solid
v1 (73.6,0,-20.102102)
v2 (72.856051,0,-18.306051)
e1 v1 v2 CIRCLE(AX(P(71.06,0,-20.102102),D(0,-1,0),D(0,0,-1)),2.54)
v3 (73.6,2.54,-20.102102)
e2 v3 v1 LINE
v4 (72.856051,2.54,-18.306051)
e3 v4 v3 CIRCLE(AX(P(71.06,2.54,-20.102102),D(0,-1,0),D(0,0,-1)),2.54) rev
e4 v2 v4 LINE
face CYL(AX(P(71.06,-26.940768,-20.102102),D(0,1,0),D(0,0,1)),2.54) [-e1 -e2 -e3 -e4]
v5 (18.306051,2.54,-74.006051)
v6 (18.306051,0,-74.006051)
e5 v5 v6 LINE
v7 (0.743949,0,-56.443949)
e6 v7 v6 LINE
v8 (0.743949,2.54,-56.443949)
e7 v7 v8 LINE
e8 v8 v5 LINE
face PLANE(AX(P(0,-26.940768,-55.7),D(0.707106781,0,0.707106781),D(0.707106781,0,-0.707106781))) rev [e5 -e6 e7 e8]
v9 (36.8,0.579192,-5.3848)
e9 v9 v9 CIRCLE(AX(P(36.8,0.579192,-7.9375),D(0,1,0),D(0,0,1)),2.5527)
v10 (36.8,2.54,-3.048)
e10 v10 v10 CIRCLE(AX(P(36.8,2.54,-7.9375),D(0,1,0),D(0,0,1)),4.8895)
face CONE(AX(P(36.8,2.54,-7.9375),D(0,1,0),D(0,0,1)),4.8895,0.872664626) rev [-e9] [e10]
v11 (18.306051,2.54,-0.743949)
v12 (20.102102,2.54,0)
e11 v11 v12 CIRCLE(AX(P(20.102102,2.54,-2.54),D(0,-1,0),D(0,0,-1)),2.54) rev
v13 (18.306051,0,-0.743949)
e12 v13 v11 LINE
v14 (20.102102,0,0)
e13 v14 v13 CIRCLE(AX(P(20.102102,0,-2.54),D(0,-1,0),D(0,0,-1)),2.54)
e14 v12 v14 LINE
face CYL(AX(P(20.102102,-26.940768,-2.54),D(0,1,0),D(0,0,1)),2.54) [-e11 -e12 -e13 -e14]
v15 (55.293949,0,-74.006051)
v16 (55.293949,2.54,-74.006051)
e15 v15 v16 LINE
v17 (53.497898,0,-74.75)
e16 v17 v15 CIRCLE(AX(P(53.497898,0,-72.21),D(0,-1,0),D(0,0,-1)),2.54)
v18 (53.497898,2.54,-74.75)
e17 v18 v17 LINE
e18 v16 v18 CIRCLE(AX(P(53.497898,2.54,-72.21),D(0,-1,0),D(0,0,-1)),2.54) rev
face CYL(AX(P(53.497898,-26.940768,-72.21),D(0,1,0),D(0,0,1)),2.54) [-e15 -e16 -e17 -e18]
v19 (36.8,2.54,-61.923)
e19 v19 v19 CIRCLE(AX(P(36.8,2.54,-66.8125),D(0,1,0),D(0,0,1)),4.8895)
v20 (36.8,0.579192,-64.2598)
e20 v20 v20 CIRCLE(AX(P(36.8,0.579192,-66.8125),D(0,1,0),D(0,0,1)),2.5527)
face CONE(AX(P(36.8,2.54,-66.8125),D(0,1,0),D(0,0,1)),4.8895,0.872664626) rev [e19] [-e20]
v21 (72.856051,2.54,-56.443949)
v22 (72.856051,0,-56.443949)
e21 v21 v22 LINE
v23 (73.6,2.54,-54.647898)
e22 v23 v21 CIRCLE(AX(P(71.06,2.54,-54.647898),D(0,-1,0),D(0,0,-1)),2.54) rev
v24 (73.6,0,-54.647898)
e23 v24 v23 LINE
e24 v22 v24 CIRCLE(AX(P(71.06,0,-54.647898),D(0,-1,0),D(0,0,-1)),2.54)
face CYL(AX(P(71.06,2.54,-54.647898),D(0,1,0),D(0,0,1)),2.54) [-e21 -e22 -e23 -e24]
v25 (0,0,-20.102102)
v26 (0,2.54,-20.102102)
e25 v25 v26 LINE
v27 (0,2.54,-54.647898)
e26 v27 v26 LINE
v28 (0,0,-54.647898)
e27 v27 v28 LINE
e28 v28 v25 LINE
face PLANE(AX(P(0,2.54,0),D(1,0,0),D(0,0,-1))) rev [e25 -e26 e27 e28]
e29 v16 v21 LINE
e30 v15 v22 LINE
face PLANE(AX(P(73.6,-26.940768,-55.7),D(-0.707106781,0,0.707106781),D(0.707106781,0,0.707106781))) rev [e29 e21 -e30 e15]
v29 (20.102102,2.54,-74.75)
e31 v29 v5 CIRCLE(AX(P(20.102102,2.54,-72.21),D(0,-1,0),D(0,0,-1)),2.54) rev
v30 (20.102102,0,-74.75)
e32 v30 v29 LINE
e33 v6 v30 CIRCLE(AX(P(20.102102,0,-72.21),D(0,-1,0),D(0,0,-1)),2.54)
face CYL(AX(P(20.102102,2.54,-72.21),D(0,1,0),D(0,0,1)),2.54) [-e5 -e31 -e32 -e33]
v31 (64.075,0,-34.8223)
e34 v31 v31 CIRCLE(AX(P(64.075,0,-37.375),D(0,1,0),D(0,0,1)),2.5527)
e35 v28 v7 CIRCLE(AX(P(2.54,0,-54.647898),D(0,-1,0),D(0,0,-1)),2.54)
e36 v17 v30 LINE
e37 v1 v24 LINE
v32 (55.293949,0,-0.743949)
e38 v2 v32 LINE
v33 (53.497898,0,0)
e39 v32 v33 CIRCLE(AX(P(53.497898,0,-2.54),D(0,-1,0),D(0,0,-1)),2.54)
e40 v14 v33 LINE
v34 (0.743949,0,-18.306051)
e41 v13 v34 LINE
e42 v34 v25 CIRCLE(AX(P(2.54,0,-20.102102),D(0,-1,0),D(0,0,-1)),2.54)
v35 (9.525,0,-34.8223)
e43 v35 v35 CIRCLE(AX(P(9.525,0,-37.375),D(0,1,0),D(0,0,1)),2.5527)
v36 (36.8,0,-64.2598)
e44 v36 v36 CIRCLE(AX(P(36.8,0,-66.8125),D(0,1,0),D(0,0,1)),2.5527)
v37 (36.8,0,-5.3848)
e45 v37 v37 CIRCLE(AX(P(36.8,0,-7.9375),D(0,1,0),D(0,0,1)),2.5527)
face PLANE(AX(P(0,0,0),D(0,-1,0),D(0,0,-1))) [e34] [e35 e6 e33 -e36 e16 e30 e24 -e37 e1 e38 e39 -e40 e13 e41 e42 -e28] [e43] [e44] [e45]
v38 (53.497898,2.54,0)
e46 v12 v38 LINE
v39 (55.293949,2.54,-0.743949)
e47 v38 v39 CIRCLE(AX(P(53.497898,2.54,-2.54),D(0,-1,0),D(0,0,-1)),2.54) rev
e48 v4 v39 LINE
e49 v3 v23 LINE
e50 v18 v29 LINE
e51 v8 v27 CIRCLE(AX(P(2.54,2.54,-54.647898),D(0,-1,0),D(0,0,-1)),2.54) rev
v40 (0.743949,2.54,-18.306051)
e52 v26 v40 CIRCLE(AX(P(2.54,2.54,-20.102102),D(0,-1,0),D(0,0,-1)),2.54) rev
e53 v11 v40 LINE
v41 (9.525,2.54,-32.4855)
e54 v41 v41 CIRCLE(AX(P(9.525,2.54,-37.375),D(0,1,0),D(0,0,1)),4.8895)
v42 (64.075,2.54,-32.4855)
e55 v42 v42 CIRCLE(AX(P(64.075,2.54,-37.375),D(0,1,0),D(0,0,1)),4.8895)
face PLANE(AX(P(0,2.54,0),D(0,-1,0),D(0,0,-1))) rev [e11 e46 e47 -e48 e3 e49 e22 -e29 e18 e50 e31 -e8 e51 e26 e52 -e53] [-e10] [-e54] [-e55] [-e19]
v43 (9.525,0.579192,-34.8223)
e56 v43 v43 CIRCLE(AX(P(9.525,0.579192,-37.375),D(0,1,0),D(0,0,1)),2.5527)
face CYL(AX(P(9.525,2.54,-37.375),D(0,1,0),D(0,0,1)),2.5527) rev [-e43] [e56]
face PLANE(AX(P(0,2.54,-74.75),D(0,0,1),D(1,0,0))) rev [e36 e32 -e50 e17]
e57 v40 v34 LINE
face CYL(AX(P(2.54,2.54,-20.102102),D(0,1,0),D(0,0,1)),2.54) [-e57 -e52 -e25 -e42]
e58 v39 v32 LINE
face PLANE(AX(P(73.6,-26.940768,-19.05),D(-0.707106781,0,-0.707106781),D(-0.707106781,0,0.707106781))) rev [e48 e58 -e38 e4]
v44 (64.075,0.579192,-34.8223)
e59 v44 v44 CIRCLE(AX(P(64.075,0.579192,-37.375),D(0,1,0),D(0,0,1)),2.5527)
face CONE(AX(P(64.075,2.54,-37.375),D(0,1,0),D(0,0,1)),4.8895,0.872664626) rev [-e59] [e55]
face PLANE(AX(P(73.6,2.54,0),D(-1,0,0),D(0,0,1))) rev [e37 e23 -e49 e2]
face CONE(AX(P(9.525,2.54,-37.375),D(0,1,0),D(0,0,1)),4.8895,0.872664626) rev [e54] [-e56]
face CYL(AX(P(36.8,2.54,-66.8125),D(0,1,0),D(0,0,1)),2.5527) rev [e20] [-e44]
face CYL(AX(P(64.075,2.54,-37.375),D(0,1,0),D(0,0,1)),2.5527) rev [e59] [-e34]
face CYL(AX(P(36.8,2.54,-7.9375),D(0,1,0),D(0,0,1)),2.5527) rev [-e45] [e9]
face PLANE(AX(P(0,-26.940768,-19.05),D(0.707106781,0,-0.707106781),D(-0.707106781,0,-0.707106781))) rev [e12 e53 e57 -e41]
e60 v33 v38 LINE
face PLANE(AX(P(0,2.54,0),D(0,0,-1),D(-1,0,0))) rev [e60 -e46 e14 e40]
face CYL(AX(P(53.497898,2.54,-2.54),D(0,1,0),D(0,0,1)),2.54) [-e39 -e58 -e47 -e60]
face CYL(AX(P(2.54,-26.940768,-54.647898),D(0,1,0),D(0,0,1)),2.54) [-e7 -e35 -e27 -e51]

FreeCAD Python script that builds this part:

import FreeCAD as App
import Part
import Sketcher
from FreeCAD import Vector
Q = App.Units.Quantity


def edges_at(feature, points):
    """Names of the edges that pass closest to the given points."""
    edges = feature.Shape.Edges
    near = lambda p: min(range(len(edges)), key=lambda i: edges[i].distToShape(Part.Vertex(*p))[0])
    return sorted({f"Edge{near(p) + 1}" for p in points})

doc = App.newDocument("Part")
params = doc.addObject("Spreadsheet::Sheet", "Params")
for row, (alias, value) in enumerate([
    ("pad1_length", "0.1 in"),
    ("sketch2_width", "0.1 in"),
    ("groove_angle", "360 deg"),
    ("linearpattern_pitch", "40.130936 mm"),
    ("linearpattern2_pitch", "54.55 mm"),
    ("linearpattern3_pitch", "40.130936 mm"),
    ("sketch3_width", "0.75 in"),
    ("pocket1_length", "0.1 in"),
    ("fillet_radius", "0.1 in"),
], start=1):
    params.set(f"A{row}", alias)
    params.set(f"B{row}", "=" + value)
    params.setAlias(f"B{row}", alias)

body = doc.addObject("PartDesign::Body", "Body")

sketch1 = doc.addObject("Sketcher::SketchObject", "Sketch")
body.addObject(sketch1)
sketch1.AttachmentSupport = (doc.XZ_Plane, [""])
sketch1.MapMode = "FlatFace"
sketch1.addGeometry([
    Part.LineSegment(Vector(0, -75, 0), Vector(0, 0, 0)),
    Part.LineSegment(Vector(0, 0, 0), Vector(74, 0, 0)),
    Part.LineSegment(Vector(74, 0, 0), Vector(74, -75, 0)),
    Part.LineSegment(Vector(74, -75, 0), Vector(0, -75, 0)),
], False)
sketch1.addConstraint([
    Sketcher.Constraint("Coincident", 0, 2, 1, 1),
    Sketcher.Constraint("Coincident", 1, 2, 2, 1),
    Sketcher.Constraint("Coincident", 2, 2, 3, 1),
    Sketcher.Constraint("Coincident", 3, 2, 0, 1),
    Sketcher.Constraint("Vertical", 0),
    Sketcher.Constraint("Horizontal", 1),
    Sketcher.Constraint("Vertical", 2),
    Sketcher.Constraint("Horizontal", 3),
    Sketcher.Constraint("Coincident", 0, 2, -1, 1),
    Sketcher.Constraint("DistanceX", 1, 1, 1, 2, 73.6),
    Sketcher.Constraint("DistanceY", 0, 1, 0, 2, 74.75),
])
pad1 = doc.addObject("PartDesign::Pad", "Pad")
body.addObject(pad1)
pad1.Profile = sketch1
pad1.setExpression("Length", "Params.pad1_length")
pad1.Reversed = True

sketch2 = doc.addObject("Sketcher::SketchObject", "Sketch001")
body.addObject(sketch2)
sketch2.AttachmentSupport = (doc.YZ_Plane, [""])
sketch2.MapMode = "FlatFace"
sketch2.AttachmentOffset = App.Placement(Vector(0, 0, 0.375 * 25.4), App.Rotation())
sketch2.addGeometry([
    Part.LineSegment(Vector(0, -37.4, 0), Vector(2.5, -37.4, 0)),
    Part.LineSegment(Vector(2.5, -37.4, 0), Vector(2.5, -32.5, 0)),
    Part.LineSegment(Vector(2.5, -32.5, 0), Vector(0.6, -34.8, 0)),
    Part.LineSegment(Vector(0.6, -34.8, 0), Vector(0, -34.8, 0)),
    Part.LineSegment(Vector(0, -34.8, 0), Vector(0, -37.4, 0)),
], False)
sketch2.addGeometry(Part.LineSegment(Vector(2.5, -37.4, 0), Vector(0, -37.4, 0)), True)
sketch2.addConstraint([
    Sketcher.Constraint("Coincident", 0, 2, 1, 1),
    Sketcher.Constraint("Coincident", 1, 2, 2, 1),
    Sketcher.Constraint("Coincident", 2, 2, 3, 1),
    Sketcher.Constraint("Coincident", 3, 2, 4, 1),
    Sketcher.Constraint("Coincident", 4, 2, 0, 1),
    Sketcher.Constraint("Horizontal", 0),
    Sketcher.Constraint("Vertical", 1),
    Sketcher.Constraint("Horizontal", 3),
    Sketcher.Constraint("Vertical", 4),
    Sketcher.Constraint("Horizontal", 5),
    Sketcher.Constraint("Coincident", 5, 1, 0, 2),
    Sketcher.Constraint("PointOnObject", 3, 2, -2),
    Sketcher.Constraint("PointOnObject", 5, 2, -2),
    Sketcher.Constraint("DistanceX", 0, 1, 0, 2, Q("0.1 in")),
    Sketcher.Constraint("Angle", 2, Q("-130 deg")),
    Sketcher.Constraint("DistanceY", 1, 1, 1, 2, Q("0.1925 in")),
    Sketcher.Constraint("DistanceY", 4, 2, 4, 1, Q("0.1005 in")),
    Sketcher.Constraint("DistanceY", 0, 2, -1, 1, 37.375),
])
sketch2.setExpression("Constraints[13]", "Params.sketch2_width")
groove = doc.addObject("PartDesign::Groove", "Groove")
body.addObject(groove)
groove.Profile = sketch2
groove.ReferenceAxis = (sketch2, ["Axis0"])
groove.setExpression("Angle", "Params.groove_angle")
doc.recompute()

datumline = doc.addObject("PartDesign::Line", "DatumLine")
body.addObject(datumline)
datumline.Placement = App.Placement(Vector(0, 0, 0), App.Rotation(Vector(0, 0, 1), Vector(0.679650232, 0, 0.73353634)))
linearpattern = doc.addObject("PartDesign::LinearPattern", "LinearPattern")
body.addObject(linearpattern)
linearpattern.Originals = [groove]
linearpattern.Direction = (datumline, [""])
linearpattern.Mode = "offset"
linearpattern.setExpression("Offset", "Params.linearpattern_pitch")
linearpattern.Occurrences = 2
body.Tip = linearpattern
doc.recompute()

linearpattern2 = doc.addObject("PartDesign::LinearPattern", "LinearPattern001")
body.addObject(linearpattern2)
linearpattern2.Originals = [groove]
linearpattern2.Direction = (doc.X_Axis, [""])
linearpattern2.Mode = "offset"
linearpattern2.setExpression("Offset", "Params.linearpattern2_pitch")
linearpattern2.Occurrences = 2
body.Tip = linearpattern2
doc.recompute()

datumline2 = doc.addObject("PartDesign::Line", "DatumLine001")
body.addObject(datumline2)
datumline2.Placement = App.Placement(Vector(0, 0, 0), App.Rotation(Vector(0, 0, 1), Vector(0.679650232, 0, -0.73353634)))
linearpattern3 = doc.addObject("PartDesign::LinearPattern", "LinearPattern002")
body.addObject(linearpattern3)
linearpattern3.Originals = [groove]
linearpattern3.Direction = (datumline2, [""])
linearpattern3.Mode = "offset"
linearpattern3.setExpression("Offset", "Params.linearpattern3_pitch")
linearpattern3.Occurrences = 2
body.Tip = linearpattern3

sketch3 = doc.addObject("Sketcher::SketchObject", "Sketch002")
body.addObject(sketch3)
sketch3.AttachmentSupport = (doc.XZ_Plane, [""])
sketch3.MapMode = "FlatFace"
sketch3.AttachmentOffset = App.Placement(Vector(0, 0, -0.1 * 25.4), App.Rotation())
sketch3.addGeometry([
    Part.LineSegment(Vector(0, -19, 0), Vector(0, 0, 0)),
    Part.LineSegment(Vector(0, 0, 0), Vector(19, 0, 0)),
    Part.LineSegment(Vector(19, 0, 0), Vector(0, -19, 0)),
    Part.LineSegment(Vector(55, 0, 0), Vector(74, 0, 0)),
    Part.LineSegment(Vector(74, 0, 0), Vector(74, -19, 0)),
    Part.LineSegment(Vector(74, -19, 0), Vector(55, 0, 0)),
    Part.LineSegment(Vector(74, -56, 0), Vector(74, -75, 0)),
    Part.LineSegment(Vector(74, -75, 0), Vector(55, -75, 0)),
    Part.LineSegment(Vector(55, -75, 0), Vector(74, -56, 0)),
    Part.LineSegment(Vector(0, -56, 0), Vector(19, -75, 0)),
    Part.LineSegment(Vector(19, -75, 0), Vector(0, -75, 0)),
    Part.LineSegment(Vector(0, -75, 0), Vector(0, -56, 0)),
], False)
sketch3.addConstraint([
    Sketcher.Constraint("Coincident", 0, 2, 1, 1),
    Sketcher.Constraint("Coincident", 1, 2, 2, 1),
    Sketcher.Constraint("Coincident", 2, 2, 0, 1),
    Sketcher.Constraint("Coincident", 3, 2, 4, 1),
    Sketcher.Constraint("Coincident", 4, 2, 5, 1),
    Sketcher.Constraint("Coincident", 5, 2, 3, 1),
    Sketcher.Constraint("Coincident", 6, 2, 7, 1),
    Sketcher.Constraint("Coincident", 7, 2, 8, 1),
    Sketcher.Constraint("Coincident", 8, 2, 6, 1),
    Sketcher.Constraint("Coincident", 9, 2, 10, 1),
    Sketcher.Constraint("Coincident", 10, 2, 11, 1),
    Sketcher.Constraint("Coincident", 11, 2, 9, 1),
    Sketcher.Constraint("Vertical", 0),
    Sketcher.Constraint("Horizontal", 1),
    Sketcher.Constraint("Horizontal", 3),
    Sketcher.Constraint("Vertical", 4),
    Sketcher.Constraint("Vertical", 6),
    Sketcher.Constraint("Horizontal", 7),
    Sketcher.Constraint("Horizontal", 10),
    Sketcher.Constraint("Vertical", 11),
    Sketcher.Constraint("Coincident", 0, 2, -1, 1),
    Sketcher.Constraint("PointOnObject", 3, 2, -1),
    Sketcher.Constraint("PointOnObject", 10, 2, -2),
    Sketcher.Constraint("Perpendicular", 2, 5),
    Sketcher.Constraint("Perpendicular", 5, 8),
    Sketcher.Constraint("Perpendicular", 8, 9),
    Sketcher.Constraint("Horizontal", 2, 2, 4, 2),
    Sketcher.Constraint("Horizontal", 7, 2, 9, 2),
    Sketcher.Constraint("Horizontal", 8, 2, 11, 2),
    Sketcher.Constraint("Vertical", 4, 2, 6, 2),
    Sketcher.Constraint("Vertical", 5, 2, 7, 2),
    Sketcher.Constraint("Vertical", 1, 2, 9, 2),
    Sketcher.Constraint("DistanceX", 1, 1, 1, 2, Q("0.75 in")),
    Sketcher.Constraint("DistanceX", -1, 1, 3, 2, 73.6),
    Sketcher.Constraint("DistanceY", 6, 2, -1, 1, 74.75),
])
sketch3.setExpression("Constraints[32]", "Params.sketch3_width")
pocket1 = doc.addObject("PartDesign::Pocket", "Pocket")
body.addObject(pocket1)
pocket1.Profile = sketch3
pocket1.setExpression("Length", "Params.pocket1_length")
pocket1.Reversed = True
doc.recompute()

fillet = doc.addObject("PartDesign::Fillet", "Fillet")
body.addObject(fillet)
fillet.Base = (pocket1, edges_at(pocket1, [
    (19.05, 1.27, -74.75),
    (0, 1.27, -55.7),
    (73.6, 1.27, -55.7),
    (54.55, 1.27, -74.75),
    (73.6, 1.27, -19.05),
    (54.55, 1.27, 0),
    (0, 1.27, -19.05),
    (19.05, 1.27, 0),
]))
fillet.setExpression("Radius", "Params.fillet_radius")

doc.recompute()
